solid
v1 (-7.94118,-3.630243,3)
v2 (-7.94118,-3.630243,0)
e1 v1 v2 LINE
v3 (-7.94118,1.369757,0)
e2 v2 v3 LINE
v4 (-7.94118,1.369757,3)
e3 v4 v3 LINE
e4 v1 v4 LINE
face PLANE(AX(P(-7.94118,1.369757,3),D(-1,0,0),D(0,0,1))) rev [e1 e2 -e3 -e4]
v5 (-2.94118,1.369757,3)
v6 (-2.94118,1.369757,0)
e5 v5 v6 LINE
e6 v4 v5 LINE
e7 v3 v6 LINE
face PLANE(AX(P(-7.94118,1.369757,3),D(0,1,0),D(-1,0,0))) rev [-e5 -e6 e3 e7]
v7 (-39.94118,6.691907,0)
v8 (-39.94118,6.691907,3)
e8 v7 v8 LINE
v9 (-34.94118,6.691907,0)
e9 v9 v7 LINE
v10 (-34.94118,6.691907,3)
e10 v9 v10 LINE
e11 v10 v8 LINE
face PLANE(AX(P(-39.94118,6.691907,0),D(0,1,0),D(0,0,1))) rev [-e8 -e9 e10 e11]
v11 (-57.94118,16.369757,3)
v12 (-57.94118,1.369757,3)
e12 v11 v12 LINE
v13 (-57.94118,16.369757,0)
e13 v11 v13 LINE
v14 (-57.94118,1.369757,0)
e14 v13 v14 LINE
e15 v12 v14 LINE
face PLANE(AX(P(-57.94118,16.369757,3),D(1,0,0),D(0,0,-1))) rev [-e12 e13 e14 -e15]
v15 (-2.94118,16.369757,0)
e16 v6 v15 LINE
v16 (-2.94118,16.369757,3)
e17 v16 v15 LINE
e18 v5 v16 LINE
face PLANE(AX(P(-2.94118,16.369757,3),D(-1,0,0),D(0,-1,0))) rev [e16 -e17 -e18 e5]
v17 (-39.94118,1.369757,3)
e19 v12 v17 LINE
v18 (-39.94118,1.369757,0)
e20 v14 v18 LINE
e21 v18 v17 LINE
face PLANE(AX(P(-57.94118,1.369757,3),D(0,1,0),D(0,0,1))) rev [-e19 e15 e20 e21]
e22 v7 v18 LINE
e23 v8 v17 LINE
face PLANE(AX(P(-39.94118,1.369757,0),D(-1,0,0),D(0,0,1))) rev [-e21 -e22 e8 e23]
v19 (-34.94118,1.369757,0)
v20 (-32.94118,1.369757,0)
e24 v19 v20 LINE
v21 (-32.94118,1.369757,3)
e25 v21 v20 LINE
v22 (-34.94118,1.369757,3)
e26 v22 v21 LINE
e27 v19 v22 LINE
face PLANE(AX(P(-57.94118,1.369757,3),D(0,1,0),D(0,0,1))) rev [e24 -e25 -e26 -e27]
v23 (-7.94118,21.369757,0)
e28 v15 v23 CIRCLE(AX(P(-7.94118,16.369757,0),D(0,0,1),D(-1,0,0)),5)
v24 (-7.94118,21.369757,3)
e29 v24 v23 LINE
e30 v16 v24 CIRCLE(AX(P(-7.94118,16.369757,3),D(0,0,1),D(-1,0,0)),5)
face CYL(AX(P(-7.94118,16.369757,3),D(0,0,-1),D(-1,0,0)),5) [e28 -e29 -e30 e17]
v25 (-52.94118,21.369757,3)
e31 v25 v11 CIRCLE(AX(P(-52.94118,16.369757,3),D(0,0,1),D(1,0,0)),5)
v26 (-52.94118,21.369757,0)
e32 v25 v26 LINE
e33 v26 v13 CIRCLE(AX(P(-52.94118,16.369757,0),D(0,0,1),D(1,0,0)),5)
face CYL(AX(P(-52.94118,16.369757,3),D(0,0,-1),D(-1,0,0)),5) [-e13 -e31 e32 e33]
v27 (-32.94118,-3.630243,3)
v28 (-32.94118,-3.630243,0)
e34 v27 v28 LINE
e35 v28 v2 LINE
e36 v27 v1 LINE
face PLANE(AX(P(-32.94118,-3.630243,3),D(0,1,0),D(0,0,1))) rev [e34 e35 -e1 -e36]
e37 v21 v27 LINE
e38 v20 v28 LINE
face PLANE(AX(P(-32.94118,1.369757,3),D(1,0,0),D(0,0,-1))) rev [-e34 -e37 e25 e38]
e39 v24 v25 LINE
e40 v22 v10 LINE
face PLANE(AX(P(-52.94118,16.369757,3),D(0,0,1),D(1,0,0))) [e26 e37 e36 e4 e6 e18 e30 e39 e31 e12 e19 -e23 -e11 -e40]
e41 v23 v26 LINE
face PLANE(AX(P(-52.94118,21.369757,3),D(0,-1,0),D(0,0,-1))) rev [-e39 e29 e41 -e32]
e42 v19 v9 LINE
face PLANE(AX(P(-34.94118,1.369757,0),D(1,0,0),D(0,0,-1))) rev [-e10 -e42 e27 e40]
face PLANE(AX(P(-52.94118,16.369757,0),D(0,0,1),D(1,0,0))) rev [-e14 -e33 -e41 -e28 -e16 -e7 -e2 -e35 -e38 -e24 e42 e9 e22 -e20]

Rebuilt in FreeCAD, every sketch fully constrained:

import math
import FreeCAD as App
import Part
import Sketcher
Q = App.Units.Quantity


def add_polygon(sketch, points):
    """Adds a closed chain of lines whose ends are joined by coincident constraints."""
    first, n = sketch.GeometryCount, len(points)
    for a, b in zip(points, points[1:] + points[:1]):
        sketch.addGeometry(Part.LineSegment(App.Vector(*a, 0), App.Vector(*b, 0)), False)
    for i in range(n):
        sketch.addConstraint(Sketcher.Constraint("Coincident", first + i, 2, first + (i + 1) % n, 1))

doc = App.newDocument("Part")
body = doc.addObject("PartDesign::Body", "Body")

# Sketch on XY plane
sketch1 = doc.addObject("Sketcher::SketchObject", "Sketch")
body.addObject(sketch1)
sketch1.AttachmentSupport = (doc.XY_Plane, [""])
sketch1.MapMode = "FlatFace"
sketch1.addGeometry([
    Part.LineSegment(App.Vector(-8, 1, 0), App.Vector(-3, 1, 0)),  # 0
    Part.LineSegment(App.Vector(-3, 1, 0), App.Vector(-3, 16, 0)),  # 1
    Part.ArcOfCircle(Part.Circle(App.Vector(-8, 16, 0), App.Vector(0, 0, 1), 5), math.radians(0), math.radians(90)),  # 2
    Part.LineSegment(App.Vector(-8, 21, 0), App.Vector(-53, 21, 0)),  # 3
    Part.ArcOfCircle(Part.Circle(App.Vector(-53, 16, 0), App.Vector(0, 0, 1), 5), math.radians(90), math.radians(180)),  # 4
    Part.LineSegment(App.Vector(-58, 16, 0), App.Vector(-58, 1, 0)),  # 5
    Part.LineSegment(App.Vector(-58, 1, 0), App.Vector(-33, 1, 0)),  # 6
    Part.LineSegment(App.Vector(-33, 1, 0), App.Vector(-33, -4, 0)),  # 7
    Part.LineSegment(App.Vector(-33, -4, 0), App.Vector(-8, -4, 0)),  # 8
    Part.LineSegment(App.Vector(-8, -4, 0), App.Vector(-8, 1, 0)),  # 9
], False)
sketch1.addConstraint([
    Sketcher.Constraint("Coincident", 0, 2, 1, 1),
    Sketcher.Constraint("Tangent", 1, 2, 2, 1),
    Sketcher.Constraint("Tangent", 2, 2, 3, 1),
    Sketcher.Constraint("Tangent", 3, 2, 4, 1),
    Sketcher.Constraint("Tangent", 4, 2, 5, 1),
    Sketcher.Constraint("Coincident", 5, 2, 6, 1),
    Sketcher.Constraint("Coincident", 6, 2, 7, 1),
    Sketcher.Constraint("Coincident", 7, 2, 8, 1),
    Sketcher.Constraint("Coincident", 8, 2, 9, 1),
    Sketcher.Constraint("Coincident", 9, 2, 0, 1),
    Sketcher.Constraint("Horizontal", 0),
    Sketcher.Constraint("Vertical", 1),
    Sketcher.Constraint("Horizontal", 3),
    Sketcher.Constraint("Vertical", 5),
    Sketcher.Constraint("Horizontal", 6),
    Sketcher.Constraint("Vertical", 7),
    Sketcher.Constraint("Horizontal", 8),
    Sketcher.Constraint("Vertical", 9),
    Sketcher.Constraint("Equal", 2, 4),
    Sketcher.Constraint("Horizontal", 0, 2, 5, 2),
    Sketcher.Constraint("Vertical", 2, 2, 8, 2),
    Sketcher.Constraint("Equal", 6, 8),
    Sketcher.Constraint("Equal", 0, 7),
    Sketcher.Constraint("Radius", 2, Q("5 mm")),
    Sketcher.Constraint("DistanceX", 3, 2, 3, 1, Q("45 mm")),
    Sketcher.Constraint("DistanceY", 1, 1, 1, 2, Q("15 mm")),
    Sketcher.Constraint("DistanceX", 2, 3, -1, 1, Q("7.94118 mm")),
    Sketcher.Constraint("DistanceY", -1, 1, 2, 3, Q("16.369757 mm")),
])
pad1 = doc.addObject("PartDesign::Pad", "Pad")
body.addObject(pad1)
pad1.Profile = sketch1
pad1.Length = 3

# Sketch on XY plane
sketch2 = doc.addObject("Sketcher::SketchObject", "Sketch001")
body.addObject(sketch2)
sketch2.AttachmentSupport = (doc.XY_Plane, [""])
sketch2.MapMode = "FlatFace"
sketch2.AttachmentOffset = App.Placement(App.Vector(0, 0, 3), App.Rotation())
add_polygon(sketch2, [(-40, 7), (-40, 1), (-35, 1), (-35, 7)])  # lines 0-3
sketch2.addConstraint([
    Sketcher.Constraint("Vertical", 0),
    Sketcher.Constraint("Horizontal", 1),
    Sketcher.Constraint("Vertical", 2),
    Sketcher.Constraint("Horizontal", 3),
    Sketcher.Constraint("DistanceX", 1, 1, 1, 2, Q("5 mm")),
    Sketcher.Constraint("DistanceY", 0, 2, 0, 1, Q("5.32215 mm")),
    Sketcher.Constraint("DistanceX", 0, 2, -1, 1, Q("39.94118 mm")),
    Sketcher.Constraint("DistanceY", -1, 1, 0, 2, Q("1.369757 mm")),
])
pocket1 = doc.addObject("PartDesign::Pocket", "Pocket")
body.addObject(pocket1)
pocket1.Profile = sketch2
pocket1.Type = "ThroughAll"

doc.recompute()
